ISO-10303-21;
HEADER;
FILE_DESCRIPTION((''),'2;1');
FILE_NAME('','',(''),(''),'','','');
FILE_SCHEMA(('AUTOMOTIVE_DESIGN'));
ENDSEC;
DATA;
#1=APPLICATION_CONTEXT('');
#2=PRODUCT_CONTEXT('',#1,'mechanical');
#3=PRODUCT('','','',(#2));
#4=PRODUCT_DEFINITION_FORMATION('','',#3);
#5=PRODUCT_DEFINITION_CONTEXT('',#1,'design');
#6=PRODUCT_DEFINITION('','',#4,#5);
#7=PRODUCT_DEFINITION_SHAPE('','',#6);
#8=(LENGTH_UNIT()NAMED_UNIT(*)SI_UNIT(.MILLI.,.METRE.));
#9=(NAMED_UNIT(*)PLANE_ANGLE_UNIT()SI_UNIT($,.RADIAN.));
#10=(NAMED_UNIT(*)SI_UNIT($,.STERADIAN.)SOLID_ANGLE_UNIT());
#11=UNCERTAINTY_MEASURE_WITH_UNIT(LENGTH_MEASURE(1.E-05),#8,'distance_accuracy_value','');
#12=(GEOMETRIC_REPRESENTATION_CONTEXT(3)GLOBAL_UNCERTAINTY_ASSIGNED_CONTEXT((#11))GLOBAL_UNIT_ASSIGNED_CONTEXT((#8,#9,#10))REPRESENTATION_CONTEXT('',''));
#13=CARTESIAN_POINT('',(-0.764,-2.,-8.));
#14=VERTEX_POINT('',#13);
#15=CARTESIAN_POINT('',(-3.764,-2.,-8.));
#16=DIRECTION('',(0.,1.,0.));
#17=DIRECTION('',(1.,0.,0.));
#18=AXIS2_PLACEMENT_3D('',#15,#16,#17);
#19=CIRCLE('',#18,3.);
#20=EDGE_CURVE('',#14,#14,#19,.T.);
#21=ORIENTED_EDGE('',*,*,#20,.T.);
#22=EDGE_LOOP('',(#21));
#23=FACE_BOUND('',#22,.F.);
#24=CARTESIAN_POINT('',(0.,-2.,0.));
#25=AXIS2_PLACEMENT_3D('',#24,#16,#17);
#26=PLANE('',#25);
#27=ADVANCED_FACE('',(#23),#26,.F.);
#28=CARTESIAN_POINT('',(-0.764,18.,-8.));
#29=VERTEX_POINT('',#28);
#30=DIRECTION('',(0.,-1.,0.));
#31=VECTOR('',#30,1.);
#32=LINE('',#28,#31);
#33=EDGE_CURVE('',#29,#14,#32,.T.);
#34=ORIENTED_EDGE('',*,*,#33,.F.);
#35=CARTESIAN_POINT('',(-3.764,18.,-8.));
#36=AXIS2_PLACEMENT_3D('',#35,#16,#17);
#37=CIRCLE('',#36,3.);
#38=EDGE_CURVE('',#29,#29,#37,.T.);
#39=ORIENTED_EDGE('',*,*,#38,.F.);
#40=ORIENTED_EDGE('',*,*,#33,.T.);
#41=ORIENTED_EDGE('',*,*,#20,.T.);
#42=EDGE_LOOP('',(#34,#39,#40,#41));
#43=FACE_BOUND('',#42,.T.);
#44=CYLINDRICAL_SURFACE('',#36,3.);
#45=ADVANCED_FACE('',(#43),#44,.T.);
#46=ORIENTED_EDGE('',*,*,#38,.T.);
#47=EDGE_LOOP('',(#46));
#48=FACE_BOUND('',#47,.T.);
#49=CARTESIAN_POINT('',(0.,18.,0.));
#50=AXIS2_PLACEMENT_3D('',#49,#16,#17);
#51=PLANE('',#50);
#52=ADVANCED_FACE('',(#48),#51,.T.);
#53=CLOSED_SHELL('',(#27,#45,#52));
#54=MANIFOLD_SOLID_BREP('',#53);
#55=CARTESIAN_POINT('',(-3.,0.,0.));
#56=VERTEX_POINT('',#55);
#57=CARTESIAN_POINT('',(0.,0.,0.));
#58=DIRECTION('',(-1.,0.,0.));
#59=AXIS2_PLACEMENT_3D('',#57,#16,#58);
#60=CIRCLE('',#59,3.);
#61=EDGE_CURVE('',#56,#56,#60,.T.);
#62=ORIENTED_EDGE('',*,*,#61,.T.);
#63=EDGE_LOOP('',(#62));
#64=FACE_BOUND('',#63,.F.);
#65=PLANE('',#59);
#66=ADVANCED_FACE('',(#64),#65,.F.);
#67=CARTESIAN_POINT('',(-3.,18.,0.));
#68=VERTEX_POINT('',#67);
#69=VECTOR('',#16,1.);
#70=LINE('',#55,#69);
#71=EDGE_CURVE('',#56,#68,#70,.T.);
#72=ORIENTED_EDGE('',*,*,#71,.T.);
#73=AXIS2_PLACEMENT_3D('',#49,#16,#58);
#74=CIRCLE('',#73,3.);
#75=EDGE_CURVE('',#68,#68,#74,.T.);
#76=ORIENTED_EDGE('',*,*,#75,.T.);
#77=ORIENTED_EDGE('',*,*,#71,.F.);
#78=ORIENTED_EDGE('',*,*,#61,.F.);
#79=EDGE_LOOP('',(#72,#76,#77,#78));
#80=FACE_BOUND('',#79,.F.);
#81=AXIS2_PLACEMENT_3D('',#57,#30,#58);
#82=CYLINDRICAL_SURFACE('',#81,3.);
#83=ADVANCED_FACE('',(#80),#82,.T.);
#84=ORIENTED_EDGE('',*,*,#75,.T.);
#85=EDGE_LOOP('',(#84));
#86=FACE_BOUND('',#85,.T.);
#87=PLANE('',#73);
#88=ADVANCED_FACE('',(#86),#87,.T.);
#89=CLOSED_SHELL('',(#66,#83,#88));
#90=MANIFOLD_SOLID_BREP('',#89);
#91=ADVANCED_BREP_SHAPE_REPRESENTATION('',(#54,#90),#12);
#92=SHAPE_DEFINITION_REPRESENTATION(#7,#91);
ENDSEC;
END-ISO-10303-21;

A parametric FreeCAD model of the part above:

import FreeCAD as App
import Part
import Sketcher
Q = App.Units.Quantity

doc = App.newDocument("Part")
body = doc.addObject("PartDesign::Body", "Body")
body.AllowCompound = True

# Sketch on XZ plane
sketch1 = doc.addObject("Sketcher::SketchObject", "Sketch")
body.addObject(sketch1)
sketch1.AttachmentSupport = (doc.XZ_Plane, [""])
sketch1.MapMode = "FlatFace"
sketch1.addGeometry(Part.Circle(App.Vector(0, 0, 0), App.Vector(0, 0, 1), 3), False)
sketch1.addConstraint([
    Sketcher.Constraint("Coincident", 0, 3, -1, 1),
    Sketcher.Constraint("Diameter", 0, Q("6 mm")),
])
pad1 = doc.addObject("PartDesign::Pad", "Pad")
body.addObject(pad1)
pad1.Profile = sketch1
pad1.Length = 18
pad1.Reversed = True

# Sketch on XZ plane
sketch2 = doc.addObject("Sketcher::SketchObject", "Sketch001")
body.addObject(sketch2)
sketch2.AttachmentSupport = (doc.XZ_Plane, [""])
sketch2.MapMode = "FlatFace"
sketch2.AttachmentOffset = App.Placement(App.Vector(0, 0, -18), App.Rotation())
sketch2.addGeometry(Part.Circle(App.Vector(-3.8, -8, 0), App.Vector(0, 0, 1), 3), False)
sketch2.addConstraint([
    Sketcher.Constraint("Diameter", 0, Q("6 mm")),
    Sketcher.Constraint("DistanceY", 0, 3, -1, 1, Q("8 mm")),
    Sketcher.Constraint("DistanceX", 0, 3, -1, 1, Q("3.764 mm")),
])
pad2 = doc.addObject("PartDesign::Pad", "Pad001")
body.addObject(pad2)
pad2.Profile = sketch2
pad2.Length = 20

doc.recompute()
